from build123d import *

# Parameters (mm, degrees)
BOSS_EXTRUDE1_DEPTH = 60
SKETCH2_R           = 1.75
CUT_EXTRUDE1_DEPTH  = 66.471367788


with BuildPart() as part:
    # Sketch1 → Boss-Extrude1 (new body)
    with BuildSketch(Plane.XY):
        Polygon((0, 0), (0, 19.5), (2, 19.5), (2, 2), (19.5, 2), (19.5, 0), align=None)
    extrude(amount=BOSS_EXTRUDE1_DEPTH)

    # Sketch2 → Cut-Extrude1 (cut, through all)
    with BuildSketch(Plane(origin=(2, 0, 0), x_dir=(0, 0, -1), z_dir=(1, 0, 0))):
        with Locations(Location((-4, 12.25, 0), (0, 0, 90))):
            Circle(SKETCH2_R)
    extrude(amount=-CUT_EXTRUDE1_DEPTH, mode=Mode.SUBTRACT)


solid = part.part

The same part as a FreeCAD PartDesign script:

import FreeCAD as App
import Part
import Sketcher
Q = App.Units.Quantity

doc = App.newDocument("Part")
params = doc.addObject("Spreadsheet::Sheet", "Params")
for row, (alias, value) in enumerate([
    ("sketch1_width", "2 mm"),
    ("sketch1_width2", "19.5 mm"),
    ("pad1_length", "60 mm"),
    ("sketch2_diameter", "3.5 mm"),
], start=1):
    params.set(f"A{row}", alias)
    params.set(f"B{row}", "=" + value)
    params.setAlias(f"B{row}", alias)

body = doc.addObject("PartDesign::Body", "Body")

# Sketch on XY plane
sketch1 = body.newObject("Sketcher::SketchObject", "Sketch")
sketch1.AttachmentSupport = (doc.getObject("XY_Plane"), [""])
sketch1.MapMode = "FlatFace"
sketch1.addGeometry([
    Part.LineSegment(App.Vector(0, 19.5, 0), App.Vector(0, 0, 0)),  # 0
    Part.LineSegment(App.Vector(0, 0, 0), App.Vector(19.5, 0, 0)),  # 1
    Part.LineSegment(App.Vector(19.5, 0, 0), App.Vector(19.5, 2, 0)),  # 2
    Part.LineSegment(App.Vector(19.5, 2, 0), App.Vector(2, 2, 0)),  # 3
    Part.LineSegment(App.Vector(2, 2, 0), App.Vector(2, 19.5, 0)),  # 4
    Part.LineSegment(App.Vector(2, 19.5, 0), App.Vector(0, 19.5, 0)),  # 5
], False)
sketch1.addConstraint([
    Sketcher.Constraint("Coincident", 0, 2, 1, 1),
    Sketcher.Constraint("Coincident", 1, 2, 2, 1),
    Sketcher.Constraint("Coincident", 2, 2, 3, 1),
    Sketcher.Constraint("Coincident", 3, 2, 4, 1),
    Sketcher.Constraint("Coincident", 4, 2, 5, 1),
    Sketcher.Constraint("Coincident", 5, 2, 0, 1),
    Sketcher.Constraint("Vertical", 0),
    Sketcher.Constraint("Horizontal", 1),
    Sketcher.Constraint("Vertical", 2),
    Sketcher.Constraint("Horizontal", 3),
    Sketcher.Constraint("Vertical", 4),
    Sketcher.Constraint("Horizontal", 5),
    Sketcher.Constraint("Coincident", 0, 2, -1, 1),
    Sketcher.Constraint("Equal", 1, 0),
    Sketcher.Constraint("Equal", 5, 2),
    Sketcher.Constraint("DistanceX", 5, 2, 5, 1, Q("2 mm")),
    Sketcher.Constraint("DistanceX", 1, 1, 1, 2, Q("19.5 mm")),
])
sketch1.setExpression("Constraints[15]", "Params.sketch1_width")
sketch1.setExpression("Constraints[16]", "Params.sketch1_width2")
pad1 = body.newObject("PartDesign::Pad", "Pad")
pad1.Profile = sketch1
pad1.setExpression("Length", "Params.pad1_length")

# Sketch on YZ plane
sketch2 = body.newObject("Sketcher::SketchObject", "Sketch001")
sketch2.AttachmentSupport = (doc.getObject("YZ_Plane"), [""])
sketch2.MapMode = "FlatFace"
sketch2.AttachmentOffset = App.Placement(App.Vector(0, 0, 2), App.Rotation())
sketch2.addGeometry(Part.Circle(App.Vector(12.25, 4, 0), App.Vector(0, 0, 1), 1.75), False)
sketch2.addConstraint([
    Sketcher.Constraint("Diameter", 0, Q("3.5 mm")),
    Sketcher.Constraint("DistanceY", -1, 1, 0, 3, Q("4 mm")),
    Sketcher.Constraint("DistanceX", -1, 1, 0, 3, Q("12.25 mm")),
])
sketch2.setExpression("Constraints[0]", "Params.sketch2_diameter")
pocket1 = body.newObject("PartDesign::Pocket", "Pocket")
pocket1.Profile = sketch2
pocket1.Type = "ThroughAll"

doc.recompute()
